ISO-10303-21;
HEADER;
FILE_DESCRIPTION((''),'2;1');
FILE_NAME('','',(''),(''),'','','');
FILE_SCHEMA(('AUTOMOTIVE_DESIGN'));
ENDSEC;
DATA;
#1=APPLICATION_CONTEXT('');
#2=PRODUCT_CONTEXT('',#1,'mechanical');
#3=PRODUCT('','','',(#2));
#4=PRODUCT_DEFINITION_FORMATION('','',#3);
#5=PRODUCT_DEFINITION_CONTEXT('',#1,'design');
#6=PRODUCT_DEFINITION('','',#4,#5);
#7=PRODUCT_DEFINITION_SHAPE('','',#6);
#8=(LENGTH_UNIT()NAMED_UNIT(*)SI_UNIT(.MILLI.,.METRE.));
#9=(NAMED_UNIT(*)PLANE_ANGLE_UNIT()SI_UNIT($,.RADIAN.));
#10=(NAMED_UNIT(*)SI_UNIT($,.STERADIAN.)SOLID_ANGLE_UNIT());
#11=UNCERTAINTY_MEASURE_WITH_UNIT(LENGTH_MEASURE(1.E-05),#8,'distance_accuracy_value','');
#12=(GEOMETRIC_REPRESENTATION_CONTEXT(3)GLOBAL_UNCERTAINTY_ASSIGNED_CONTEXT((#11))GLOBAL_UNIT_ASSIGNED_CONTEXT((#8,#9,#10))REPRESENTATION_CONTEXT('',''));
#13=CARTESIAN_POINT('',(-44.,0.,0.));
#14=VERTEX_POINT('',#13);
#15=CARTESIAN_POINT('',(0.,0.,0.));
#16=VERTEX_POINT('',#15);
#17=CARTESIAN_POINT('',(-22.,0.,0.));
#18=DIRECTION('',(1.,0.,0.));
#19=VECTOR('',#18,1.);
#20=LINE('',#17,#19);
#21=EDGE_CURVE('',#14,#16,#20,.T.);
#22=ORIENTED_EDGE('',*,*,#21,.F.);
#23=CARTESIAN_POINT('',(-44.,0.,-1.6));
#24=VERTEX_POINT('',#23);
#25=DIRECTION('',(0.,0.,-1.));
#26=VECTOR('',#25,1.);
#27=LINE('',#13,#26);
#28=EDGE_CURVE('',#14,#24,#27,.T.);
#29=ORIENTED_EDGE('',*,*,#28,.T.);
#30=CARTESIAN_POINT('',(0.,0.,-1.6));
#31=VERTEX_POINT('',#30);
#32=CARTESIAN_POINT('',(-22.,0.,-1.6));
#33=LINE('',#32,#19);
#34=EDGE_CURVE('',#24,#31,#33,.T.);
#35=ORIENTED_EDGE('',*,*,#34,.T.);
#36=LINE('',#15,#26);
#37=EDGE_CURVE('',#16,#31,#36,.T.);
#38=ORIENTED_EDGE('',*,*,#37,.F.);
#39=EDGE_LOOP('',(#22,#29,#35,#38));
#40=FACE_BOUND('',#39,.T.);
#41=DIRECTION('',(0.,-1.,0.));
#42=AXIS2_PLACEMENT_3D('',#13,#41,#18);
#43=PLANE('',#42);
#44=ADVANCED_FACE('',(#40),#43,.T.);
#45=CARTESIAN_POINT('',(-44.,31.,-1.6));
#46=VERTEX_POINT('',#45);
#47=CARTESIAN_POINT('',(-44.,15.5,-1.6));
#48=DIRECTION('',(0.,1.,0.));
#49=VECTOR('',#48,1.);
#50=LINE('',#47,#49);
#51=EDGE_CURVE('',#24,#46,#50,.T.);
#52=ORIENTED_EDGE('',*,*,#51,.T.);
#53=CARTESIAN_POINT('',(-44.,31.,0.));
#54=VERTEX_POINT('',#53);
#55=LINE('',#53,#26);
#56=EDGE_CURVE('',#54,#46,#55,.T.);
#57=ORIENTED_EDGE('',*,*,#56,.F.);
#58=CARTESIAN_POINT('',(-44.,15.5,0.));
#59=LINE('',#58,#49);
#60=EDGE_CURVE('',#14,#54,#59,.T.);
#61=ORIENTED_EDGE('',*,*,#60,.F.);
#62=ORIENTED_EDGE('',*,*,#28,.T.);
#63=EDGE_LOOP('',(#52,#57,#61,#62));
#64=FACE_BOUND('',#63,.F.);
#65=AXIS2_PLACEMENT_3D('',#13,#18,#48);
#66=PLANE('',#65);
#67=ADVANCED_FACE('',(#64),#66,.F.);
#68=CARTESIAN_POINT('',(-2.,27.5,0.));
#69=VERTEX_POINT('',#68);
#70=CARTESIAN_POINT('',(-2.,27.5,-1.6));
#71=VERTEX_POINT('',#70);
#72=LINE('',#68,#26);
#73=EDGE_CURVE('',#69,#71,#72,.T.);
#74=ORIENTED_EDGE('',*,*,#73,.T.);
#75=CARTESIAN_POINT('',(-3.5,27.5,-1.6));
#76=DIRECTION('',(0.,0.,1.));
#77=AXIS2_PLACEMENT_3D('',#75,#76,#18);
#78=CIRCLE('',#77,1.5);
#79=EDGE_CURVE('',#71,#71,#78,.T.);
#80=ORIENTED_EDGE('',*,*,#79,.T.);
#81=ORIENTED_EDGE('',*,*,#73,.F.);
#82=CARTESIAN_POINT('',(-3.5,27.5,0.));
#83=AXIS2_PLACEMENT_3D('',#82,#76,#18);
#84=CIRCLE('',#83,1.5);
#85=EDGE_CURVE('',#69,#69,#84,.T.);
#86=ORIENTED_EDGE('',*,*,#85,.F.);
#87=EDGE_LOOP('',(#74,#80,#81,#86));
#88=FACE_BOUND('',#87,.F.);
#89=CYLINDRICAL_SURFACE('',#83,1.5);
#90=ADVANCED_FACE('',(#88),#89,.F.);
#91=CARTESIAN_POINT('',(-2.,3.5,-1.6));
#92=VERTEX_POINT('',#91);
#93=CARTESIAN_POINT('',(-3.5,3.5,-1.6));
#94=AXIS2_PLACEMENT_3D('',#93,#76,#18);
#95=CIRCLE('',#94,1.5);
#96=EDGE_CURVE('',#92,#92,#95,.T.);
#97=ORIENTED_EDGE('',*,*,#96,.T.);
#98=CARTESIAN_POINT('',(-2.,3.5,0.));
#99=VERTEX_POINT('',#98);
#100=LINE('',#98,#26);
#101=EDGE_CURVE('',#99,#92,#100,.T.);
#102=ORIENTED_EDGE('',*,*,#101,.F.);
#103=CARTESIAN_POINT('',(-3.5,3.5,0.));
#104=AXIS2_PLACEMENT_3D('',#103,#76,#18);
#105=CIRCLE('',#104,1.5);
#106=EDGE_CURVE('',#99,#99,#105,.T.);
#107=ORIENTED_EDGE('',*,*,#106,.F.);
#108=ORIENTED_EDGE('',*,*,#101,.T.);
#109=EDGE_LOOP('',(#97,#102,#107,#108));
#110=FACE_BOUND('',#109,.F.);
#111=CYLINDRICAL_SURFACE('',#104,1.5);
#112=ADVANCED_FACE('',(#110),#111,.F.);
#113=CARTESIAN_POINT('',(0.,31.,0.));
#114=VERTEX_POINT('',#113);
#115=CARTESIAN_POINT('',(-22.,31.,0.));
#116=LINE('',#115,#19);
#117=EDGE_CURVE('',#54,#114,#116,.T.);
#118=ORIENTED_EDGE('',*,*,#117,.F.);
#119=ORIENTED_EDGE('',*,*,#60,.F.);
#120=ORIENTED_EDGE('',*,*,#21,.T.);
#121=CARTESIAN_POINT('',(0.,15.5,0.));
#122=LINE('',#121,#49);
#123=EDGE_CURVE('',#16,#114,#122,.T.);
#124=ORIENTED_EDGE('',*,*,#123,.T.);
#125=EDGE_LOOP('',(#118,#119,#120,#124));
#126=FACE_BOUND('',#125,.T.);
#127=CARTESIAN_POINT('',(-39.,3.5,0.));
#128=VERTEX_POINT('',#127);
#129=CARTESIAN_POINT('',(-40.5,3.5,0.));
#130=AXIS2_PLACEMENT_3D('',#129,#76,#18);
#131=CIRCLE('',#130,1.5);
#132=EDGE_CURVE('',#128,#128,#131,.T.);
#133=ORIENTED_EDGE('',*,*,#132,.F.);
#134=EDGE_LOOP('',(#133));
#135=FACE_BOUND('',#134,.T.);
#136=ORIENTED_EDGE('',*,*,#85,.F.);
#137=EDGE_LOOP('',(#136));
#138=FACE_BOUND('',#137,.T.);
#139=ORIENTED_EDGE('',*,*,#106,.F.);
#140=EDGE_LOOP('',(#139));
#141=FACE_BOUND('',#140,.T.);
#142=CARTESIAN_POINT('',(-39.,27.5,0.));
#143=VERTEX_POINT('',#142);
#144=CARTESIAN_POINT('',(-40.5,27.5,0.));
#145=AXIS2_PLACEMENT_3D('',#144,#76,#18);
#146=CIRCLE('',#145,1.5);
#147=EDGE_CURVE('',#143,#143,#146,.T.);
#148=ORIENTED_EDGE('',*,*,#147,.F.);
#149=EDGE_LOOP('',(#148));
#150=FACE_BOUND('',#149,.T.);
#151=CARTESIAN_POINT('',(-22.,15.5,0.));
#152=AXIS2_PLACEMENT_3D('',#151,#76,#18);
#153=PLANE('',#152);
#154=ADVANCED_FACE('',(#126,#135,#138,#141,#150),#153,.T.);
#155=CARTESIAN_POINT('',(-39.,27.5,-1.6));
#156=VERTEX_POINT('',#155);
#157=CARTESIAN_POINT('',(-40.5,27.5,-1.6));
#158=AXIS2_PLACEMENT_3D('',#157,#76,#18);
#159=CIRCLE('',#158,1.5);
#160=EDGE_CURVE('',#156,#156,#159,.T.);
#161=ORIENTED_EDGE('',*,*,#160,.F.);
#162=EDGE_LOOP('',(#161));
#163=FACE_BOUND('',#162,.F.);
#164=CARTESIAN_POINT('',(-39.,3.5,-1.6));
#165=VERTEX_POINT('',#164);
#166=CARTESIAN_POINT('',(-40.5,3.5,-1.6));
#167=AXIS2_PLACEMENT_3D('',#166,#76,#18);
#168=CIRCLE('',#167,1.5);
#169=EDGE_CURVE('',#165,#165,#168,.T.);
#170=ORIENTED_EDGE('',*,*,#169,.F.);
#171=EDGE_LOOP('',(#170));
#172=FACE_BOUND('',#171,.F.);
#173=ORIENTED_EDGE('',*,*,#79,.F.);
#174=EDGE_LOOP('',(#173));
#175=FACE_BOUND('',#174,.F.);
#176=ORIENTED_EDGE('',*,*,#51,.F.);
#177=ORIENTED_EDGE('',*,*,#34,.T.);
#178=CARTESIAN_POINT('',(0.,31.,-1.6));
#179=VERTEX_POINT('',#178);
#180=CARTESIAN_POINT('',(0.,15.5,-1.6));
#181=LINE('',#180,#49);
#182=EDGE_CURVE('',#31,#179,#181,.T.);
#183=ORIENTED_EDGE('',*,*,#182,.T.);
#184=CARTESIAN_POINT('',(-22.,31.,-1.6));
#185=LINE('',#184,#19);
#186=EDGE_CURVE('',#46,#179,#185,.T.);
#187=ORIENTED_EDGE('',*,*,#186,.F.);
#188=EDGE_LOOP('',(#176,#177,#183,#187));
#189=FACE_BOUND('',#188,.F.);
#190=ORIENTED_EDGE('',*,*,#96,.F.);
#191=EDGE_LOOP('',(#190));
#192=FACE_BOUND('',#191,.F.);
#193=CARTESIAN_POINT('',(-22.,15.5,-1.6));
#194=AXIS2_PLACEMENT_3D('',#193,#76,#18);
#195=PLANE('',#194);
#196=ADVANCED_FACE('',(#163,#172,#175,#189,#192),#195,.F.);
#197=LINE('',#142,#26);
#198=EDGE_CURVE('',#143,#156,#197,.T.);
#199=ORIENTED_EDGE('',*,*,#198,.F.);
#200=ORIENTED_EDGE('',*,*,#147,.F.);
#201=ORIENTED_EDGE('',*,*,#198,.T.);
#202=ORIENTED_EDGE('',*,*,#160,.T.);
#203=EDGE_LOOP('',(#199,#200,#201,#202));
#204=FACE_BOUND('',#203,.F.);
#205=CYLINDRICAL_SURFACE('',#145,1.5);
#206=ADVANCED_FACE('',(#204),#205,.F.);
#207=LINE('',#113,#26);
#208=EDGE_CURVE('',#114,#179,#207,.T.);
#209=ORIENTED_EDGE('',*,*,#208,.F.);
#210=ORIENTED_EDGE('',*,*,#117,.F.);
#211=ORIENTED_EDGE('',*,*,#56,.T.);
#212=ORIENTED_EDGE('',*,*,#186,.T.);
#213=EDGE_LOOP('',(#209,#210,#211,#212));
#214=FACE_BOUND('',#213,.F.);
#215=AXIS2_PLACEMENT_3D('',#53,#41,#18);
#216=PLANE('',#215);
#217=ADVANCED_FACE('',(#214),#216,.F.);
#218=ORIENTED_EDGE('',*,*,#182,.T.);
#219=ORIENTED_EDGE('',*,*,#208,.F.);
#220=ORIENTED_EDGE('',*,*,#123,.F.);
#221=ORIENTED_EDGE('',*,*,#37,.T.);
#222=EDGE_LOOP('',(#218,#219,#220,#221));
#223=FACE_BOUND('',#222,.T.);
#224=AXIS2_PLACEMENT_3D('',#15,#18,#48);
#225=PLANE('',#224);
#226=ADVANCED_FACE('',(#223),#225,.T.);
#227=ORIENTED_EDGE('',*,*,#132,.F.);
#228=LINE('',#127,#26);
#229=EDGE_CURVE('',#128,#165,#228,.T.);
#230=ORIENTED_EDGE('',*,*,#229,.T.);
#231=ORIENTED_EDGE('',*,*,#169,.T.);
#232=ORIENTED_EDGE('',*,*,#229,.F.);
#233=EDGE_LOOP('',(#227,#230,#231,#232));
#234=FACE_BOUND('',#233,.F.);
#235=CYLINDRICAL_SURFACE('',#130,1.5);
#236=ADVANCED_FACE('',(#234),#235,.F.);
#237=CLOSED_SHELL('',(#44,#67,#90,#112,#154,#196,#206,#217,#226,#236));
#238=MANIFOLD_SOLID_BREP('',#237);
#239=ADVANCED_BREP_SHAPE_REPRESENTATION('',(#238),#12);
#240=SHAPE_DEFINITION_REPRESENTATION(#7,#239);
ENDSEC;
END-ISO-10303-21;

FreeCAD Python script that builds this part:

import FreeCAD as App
import Part
import Sketcher
from FreeCAD import Vector


def add_polygon(sketch, points):
    """Adds a closed chain of lines whose ends are joined by coincident constraints."""
    first, n = sketch.GeometryCount, len(points)
    for a, b in zip(points, points[1:] + points[:1]):
        sketch.addGeometry(Part.LineSegment(App.Vector(*a, 0), App.Vector(*b, 0)), False)
    for i in range(n):
        sketch.addConstraint(Sketcher.Constraint("Coincident", first + i, 2, first + (i + 1) % n, 1))

doc = App.newDocument("Part")
body = doc.addObject("PartDesign::Body", "Body")

# Sketch on XY plane
sketch1 = body.newObject("Sketcher::SketchObject", "Sketch")
sketch1.AttachmentSupport = (doc.getObject("XY_Plane"), [""])
sketch1.MapMode = "FlatFace"
add_polygon(sketch1, [(-44, 31), (-44, 0), (0, 0), (0, 31)])  # lines 0-3
sketch1.addGeometry(Part.Circle(Vector(-40.5, 3.5, 0), Vector(0, 0, 1), 1.5), False)  # 4
sketch1.addGeometry(Part.Circle(Vector(-3.5, 3.5, 0), Vector(0, 0, 1), 1.5), False)  # 5
sketch1.addGeometry(Part.Circle(Vector(-40.5, 27.5, 0), Vector(0, 0, 1), 1.5), False)  # 6
sketch1.addGeometry(Part.Circle(Vector(-3.5, 27.5, 0), Vector(0, 0, 1), 1.5), False)  # 7
sketch1.addConstraint([
    Sketcher.Constraint("Vertical", 0),
    Sketcher.Constraint("Horizontal", 1),
    Sketcher.Constraint("Vertical", 2),
    Sketcher.Constraint("Horizontal", 3),
    Sketcher.Constraint("Coincident", 1, 2, -1, 1),
    Sketcher.Constraint("Equal", 4, 5),
    Sketcher.Constraint("Equal", 5, 6),
    Sketcher.Constraint("Equal", 6, 7),
    Sketcher.Constraint("Horizontal", 4, 3, 5, 3),
    Sketcher.Constraint("Horizontal", 6, 3, 7, 3),
    Sketcher.Constraint("Vertical", 4, 3, 6, 3),
    Sketcher.Constraint("Vertical", 5, 3, 7, 3),
    Sketcher.Constraint("Diameter", 4, 3.0),
    Sketcher.Constraint("DistanceX", 1, 1, 1, 2, 44.0),
    Sketcher.Constraint("DistanceY", 0, 2, 0, 1, 31.0),
    Sketcher.Constraint("DistanceX", 4, 3, 5, 3, 37.0),
    Sketcher.Constraint("DistanceY", 4, 3, 6, 3, 24.0),
    Sketcher.Constraint("DistanceX", 4, 3, -1, 1, 40.5),
    Sketcher.Constraint("DistanceY", -1, 1, 4, 3, 3.5),
])
pad1 = body.newObject("PartDesign::Pad", "Pad")
pad1.Profile = sketch1
pad1.Length = 1.6
pad1.Reversed = True

doc.recompute()
